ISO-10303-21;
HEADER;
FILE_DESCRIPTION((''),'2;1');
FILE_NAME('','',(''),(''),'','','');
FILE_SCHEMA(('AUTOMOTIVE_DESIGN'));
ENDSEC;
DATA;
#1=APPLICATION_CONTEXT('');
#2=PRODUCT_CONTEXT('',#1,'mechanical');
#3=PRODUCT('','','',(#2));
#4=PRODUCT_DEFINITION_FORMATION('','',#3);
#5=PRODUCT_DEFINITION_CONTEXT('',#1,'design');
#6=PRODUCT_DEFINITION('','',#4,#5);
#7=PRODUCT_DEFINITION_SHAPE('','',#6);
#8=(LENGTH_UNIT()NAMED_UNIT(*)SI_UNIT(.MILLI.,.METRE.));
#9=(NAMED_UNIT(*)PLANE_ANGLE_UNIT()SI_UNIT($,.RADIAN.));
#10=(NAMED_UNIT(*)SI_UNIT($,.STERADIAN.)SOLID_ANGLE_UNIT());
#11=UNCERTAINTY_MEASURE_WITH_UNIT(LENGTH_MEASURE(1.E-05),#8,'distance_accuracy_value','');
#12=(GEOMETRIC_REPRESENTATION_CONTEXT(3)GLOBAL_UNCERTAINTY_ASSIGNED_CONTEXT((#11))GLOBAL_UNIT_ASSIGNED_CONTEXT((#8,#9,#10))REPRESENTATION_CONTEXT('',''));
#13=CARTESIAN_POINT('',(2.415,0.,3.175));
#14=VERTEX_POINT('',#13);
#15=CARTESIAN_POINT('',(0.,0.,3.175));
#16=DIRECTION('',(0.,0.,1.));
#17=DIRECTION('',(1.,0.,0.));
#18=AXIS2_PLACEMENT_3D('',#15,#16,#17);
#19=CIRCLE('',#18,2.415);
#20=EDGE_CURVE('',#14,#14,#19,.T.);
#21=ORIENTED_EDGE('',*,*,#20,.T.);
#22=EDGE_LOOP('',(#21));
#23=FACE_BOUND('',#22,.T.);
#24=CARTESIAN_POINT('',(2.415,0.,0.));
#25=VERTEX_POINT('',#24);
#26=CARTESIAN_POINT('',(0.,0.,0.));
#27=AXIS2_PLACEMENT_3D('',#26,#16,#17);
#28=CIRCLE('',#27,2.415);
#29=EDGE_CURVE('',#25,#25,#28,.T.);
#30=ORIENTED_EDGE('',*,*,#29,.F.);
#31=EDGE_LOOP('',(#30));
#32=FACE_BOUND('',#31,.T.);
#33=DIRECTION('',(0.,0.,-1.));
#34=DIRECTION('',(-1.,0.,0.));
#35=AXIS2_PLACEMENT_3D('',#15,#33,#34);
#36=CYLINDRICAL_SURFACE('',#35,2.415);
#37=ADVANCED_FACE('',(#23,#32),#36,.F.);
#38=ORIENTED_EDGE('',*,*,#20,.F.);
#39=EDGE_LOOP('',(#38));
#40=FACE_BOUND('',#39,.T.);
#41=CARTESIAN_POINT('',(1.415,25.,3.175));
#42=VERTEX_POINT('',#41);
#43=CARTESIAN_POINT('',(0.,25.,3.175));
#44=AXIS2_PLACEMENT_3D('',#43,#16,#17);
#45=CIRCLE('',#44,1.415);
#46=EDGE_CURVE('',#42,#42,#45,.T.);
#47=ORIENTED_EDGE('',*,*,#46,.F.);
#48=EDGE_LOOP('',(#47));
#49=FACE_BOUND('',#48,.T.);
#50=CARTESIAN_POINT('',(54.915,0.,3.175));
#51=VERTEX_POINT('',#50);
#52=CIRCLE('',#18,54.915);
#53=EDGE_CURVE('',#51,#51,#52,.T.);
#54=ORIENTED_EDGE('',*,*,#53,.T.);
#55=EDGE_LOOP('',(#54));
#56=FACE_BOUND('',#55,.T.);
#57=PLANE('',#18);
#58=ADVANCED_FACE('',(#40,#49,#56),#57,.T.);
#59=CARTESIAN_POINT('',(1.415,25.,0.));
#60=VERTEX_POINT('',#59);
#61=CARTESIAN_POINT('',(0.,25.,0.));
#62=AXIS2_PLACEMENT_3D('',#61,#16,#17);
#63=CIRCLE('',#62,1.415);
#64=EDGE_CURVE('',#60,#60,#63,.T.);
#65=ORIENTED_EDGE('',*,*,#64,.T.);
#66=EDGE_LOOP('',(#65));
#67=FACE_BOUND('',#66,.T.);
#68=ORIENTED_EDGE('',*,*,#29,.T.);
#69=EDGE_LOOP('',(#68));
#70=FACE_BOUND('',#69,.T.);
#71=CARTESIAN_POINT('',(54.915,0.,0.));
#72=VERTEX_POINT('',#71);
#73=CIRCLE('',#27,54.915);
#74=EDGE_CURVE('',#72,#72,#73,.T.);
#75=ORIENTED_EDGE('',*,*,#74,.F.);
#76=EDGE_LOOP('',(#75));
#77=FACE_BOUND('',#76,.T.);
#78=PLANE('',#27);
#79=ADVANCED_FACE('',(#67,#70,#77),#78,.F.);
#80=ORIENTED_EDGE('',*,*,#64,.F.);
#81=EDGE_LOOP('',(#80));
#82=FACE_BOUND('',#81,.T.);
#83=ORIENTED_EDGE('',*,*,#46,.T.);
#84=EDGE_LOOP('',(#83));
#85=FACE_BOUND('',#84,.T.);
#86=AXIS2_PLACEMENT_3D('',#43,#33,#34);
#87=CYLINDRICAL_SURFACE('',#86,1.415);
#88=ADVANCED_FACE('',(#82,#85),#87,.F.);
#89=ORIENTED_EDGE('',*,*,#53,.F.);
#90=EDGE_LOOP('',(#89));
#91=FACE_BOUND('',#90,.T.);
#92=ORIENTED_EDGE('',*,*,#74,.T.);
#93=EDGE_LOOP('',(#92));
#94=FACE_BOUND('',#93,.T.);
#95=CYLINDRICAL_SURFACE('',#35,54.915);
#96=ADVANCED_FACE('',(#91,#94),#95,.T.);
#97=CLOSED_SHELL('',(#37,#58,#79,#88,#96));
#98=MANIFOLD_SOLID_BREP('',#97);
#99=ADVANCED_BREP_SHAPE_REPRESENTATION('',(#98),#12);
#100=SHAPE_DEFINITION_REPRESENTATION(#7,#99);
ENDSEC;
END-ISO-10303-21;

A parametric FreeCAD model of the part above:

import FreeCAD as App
import Part
import Sketcher
Q = App.Units.Quantity

doc = App.newDocument("Part")
params = doc.addObject("Spreadsheet::Sheet", "Params")
for row, (alias, value) in enumerate([
    ("pad1_length", "0.125 in"),
], start=1):
    params.set(f"A{row}", alias)
    params.set(f"B{row}", "=" + value)
    params.setAlias(f"B{row}", alias)

body = doc.addObject("PartDesign::Body", "Body")

# Sketch on XY plane
sketch1 = body.newObject("Sketcher::SketchObject", "Sketch")
sketch1.AttachmentSupport = (doc.getObject("XY_Plane"), [""])
sketch1.MapMode = "FlatFace"
sketch1.addGeometry([
    Part.Circle(App.Vector(0, 0, 0), App.Vector(0, 0, 1), 54.915),
    Part.Circle(App.Vector(0, 0, 0), App.Vector(0, 0, 1), 2.415),
    Part.Circle(App.Vector(0, 25, 0), App.Vector(0, 0, 1), 1.415),
], False)
sketch1.addConstraint([
    Sketcher.Constraint("Coincident", 0, 3, -1, 1),
    Sketcher.Constraint("Coincident", 1, 3, -1, 1),
    Sketcher.Constraint("PointOnObject", 2, 3, -2),
    Sketcher.Constraint("Diameter", 0, Q("109.83 mm")),
    Sketcher.Constraint("Diameter", 1, Q("4.83 mm")),
    Sketcher.Constraint("Diameter", 2, Q("2.83 mm")),
    Sketcher.Constraint("DistanceY", -1, 1, 2, 3, Q("25 mm")),
])
pad1 = body.newObject("PartDesign::Pad", "Pad")
pad1.Profile = sketch1
pad1.setExpression("Length", "Params.pad1_length")

doc.recompute()
